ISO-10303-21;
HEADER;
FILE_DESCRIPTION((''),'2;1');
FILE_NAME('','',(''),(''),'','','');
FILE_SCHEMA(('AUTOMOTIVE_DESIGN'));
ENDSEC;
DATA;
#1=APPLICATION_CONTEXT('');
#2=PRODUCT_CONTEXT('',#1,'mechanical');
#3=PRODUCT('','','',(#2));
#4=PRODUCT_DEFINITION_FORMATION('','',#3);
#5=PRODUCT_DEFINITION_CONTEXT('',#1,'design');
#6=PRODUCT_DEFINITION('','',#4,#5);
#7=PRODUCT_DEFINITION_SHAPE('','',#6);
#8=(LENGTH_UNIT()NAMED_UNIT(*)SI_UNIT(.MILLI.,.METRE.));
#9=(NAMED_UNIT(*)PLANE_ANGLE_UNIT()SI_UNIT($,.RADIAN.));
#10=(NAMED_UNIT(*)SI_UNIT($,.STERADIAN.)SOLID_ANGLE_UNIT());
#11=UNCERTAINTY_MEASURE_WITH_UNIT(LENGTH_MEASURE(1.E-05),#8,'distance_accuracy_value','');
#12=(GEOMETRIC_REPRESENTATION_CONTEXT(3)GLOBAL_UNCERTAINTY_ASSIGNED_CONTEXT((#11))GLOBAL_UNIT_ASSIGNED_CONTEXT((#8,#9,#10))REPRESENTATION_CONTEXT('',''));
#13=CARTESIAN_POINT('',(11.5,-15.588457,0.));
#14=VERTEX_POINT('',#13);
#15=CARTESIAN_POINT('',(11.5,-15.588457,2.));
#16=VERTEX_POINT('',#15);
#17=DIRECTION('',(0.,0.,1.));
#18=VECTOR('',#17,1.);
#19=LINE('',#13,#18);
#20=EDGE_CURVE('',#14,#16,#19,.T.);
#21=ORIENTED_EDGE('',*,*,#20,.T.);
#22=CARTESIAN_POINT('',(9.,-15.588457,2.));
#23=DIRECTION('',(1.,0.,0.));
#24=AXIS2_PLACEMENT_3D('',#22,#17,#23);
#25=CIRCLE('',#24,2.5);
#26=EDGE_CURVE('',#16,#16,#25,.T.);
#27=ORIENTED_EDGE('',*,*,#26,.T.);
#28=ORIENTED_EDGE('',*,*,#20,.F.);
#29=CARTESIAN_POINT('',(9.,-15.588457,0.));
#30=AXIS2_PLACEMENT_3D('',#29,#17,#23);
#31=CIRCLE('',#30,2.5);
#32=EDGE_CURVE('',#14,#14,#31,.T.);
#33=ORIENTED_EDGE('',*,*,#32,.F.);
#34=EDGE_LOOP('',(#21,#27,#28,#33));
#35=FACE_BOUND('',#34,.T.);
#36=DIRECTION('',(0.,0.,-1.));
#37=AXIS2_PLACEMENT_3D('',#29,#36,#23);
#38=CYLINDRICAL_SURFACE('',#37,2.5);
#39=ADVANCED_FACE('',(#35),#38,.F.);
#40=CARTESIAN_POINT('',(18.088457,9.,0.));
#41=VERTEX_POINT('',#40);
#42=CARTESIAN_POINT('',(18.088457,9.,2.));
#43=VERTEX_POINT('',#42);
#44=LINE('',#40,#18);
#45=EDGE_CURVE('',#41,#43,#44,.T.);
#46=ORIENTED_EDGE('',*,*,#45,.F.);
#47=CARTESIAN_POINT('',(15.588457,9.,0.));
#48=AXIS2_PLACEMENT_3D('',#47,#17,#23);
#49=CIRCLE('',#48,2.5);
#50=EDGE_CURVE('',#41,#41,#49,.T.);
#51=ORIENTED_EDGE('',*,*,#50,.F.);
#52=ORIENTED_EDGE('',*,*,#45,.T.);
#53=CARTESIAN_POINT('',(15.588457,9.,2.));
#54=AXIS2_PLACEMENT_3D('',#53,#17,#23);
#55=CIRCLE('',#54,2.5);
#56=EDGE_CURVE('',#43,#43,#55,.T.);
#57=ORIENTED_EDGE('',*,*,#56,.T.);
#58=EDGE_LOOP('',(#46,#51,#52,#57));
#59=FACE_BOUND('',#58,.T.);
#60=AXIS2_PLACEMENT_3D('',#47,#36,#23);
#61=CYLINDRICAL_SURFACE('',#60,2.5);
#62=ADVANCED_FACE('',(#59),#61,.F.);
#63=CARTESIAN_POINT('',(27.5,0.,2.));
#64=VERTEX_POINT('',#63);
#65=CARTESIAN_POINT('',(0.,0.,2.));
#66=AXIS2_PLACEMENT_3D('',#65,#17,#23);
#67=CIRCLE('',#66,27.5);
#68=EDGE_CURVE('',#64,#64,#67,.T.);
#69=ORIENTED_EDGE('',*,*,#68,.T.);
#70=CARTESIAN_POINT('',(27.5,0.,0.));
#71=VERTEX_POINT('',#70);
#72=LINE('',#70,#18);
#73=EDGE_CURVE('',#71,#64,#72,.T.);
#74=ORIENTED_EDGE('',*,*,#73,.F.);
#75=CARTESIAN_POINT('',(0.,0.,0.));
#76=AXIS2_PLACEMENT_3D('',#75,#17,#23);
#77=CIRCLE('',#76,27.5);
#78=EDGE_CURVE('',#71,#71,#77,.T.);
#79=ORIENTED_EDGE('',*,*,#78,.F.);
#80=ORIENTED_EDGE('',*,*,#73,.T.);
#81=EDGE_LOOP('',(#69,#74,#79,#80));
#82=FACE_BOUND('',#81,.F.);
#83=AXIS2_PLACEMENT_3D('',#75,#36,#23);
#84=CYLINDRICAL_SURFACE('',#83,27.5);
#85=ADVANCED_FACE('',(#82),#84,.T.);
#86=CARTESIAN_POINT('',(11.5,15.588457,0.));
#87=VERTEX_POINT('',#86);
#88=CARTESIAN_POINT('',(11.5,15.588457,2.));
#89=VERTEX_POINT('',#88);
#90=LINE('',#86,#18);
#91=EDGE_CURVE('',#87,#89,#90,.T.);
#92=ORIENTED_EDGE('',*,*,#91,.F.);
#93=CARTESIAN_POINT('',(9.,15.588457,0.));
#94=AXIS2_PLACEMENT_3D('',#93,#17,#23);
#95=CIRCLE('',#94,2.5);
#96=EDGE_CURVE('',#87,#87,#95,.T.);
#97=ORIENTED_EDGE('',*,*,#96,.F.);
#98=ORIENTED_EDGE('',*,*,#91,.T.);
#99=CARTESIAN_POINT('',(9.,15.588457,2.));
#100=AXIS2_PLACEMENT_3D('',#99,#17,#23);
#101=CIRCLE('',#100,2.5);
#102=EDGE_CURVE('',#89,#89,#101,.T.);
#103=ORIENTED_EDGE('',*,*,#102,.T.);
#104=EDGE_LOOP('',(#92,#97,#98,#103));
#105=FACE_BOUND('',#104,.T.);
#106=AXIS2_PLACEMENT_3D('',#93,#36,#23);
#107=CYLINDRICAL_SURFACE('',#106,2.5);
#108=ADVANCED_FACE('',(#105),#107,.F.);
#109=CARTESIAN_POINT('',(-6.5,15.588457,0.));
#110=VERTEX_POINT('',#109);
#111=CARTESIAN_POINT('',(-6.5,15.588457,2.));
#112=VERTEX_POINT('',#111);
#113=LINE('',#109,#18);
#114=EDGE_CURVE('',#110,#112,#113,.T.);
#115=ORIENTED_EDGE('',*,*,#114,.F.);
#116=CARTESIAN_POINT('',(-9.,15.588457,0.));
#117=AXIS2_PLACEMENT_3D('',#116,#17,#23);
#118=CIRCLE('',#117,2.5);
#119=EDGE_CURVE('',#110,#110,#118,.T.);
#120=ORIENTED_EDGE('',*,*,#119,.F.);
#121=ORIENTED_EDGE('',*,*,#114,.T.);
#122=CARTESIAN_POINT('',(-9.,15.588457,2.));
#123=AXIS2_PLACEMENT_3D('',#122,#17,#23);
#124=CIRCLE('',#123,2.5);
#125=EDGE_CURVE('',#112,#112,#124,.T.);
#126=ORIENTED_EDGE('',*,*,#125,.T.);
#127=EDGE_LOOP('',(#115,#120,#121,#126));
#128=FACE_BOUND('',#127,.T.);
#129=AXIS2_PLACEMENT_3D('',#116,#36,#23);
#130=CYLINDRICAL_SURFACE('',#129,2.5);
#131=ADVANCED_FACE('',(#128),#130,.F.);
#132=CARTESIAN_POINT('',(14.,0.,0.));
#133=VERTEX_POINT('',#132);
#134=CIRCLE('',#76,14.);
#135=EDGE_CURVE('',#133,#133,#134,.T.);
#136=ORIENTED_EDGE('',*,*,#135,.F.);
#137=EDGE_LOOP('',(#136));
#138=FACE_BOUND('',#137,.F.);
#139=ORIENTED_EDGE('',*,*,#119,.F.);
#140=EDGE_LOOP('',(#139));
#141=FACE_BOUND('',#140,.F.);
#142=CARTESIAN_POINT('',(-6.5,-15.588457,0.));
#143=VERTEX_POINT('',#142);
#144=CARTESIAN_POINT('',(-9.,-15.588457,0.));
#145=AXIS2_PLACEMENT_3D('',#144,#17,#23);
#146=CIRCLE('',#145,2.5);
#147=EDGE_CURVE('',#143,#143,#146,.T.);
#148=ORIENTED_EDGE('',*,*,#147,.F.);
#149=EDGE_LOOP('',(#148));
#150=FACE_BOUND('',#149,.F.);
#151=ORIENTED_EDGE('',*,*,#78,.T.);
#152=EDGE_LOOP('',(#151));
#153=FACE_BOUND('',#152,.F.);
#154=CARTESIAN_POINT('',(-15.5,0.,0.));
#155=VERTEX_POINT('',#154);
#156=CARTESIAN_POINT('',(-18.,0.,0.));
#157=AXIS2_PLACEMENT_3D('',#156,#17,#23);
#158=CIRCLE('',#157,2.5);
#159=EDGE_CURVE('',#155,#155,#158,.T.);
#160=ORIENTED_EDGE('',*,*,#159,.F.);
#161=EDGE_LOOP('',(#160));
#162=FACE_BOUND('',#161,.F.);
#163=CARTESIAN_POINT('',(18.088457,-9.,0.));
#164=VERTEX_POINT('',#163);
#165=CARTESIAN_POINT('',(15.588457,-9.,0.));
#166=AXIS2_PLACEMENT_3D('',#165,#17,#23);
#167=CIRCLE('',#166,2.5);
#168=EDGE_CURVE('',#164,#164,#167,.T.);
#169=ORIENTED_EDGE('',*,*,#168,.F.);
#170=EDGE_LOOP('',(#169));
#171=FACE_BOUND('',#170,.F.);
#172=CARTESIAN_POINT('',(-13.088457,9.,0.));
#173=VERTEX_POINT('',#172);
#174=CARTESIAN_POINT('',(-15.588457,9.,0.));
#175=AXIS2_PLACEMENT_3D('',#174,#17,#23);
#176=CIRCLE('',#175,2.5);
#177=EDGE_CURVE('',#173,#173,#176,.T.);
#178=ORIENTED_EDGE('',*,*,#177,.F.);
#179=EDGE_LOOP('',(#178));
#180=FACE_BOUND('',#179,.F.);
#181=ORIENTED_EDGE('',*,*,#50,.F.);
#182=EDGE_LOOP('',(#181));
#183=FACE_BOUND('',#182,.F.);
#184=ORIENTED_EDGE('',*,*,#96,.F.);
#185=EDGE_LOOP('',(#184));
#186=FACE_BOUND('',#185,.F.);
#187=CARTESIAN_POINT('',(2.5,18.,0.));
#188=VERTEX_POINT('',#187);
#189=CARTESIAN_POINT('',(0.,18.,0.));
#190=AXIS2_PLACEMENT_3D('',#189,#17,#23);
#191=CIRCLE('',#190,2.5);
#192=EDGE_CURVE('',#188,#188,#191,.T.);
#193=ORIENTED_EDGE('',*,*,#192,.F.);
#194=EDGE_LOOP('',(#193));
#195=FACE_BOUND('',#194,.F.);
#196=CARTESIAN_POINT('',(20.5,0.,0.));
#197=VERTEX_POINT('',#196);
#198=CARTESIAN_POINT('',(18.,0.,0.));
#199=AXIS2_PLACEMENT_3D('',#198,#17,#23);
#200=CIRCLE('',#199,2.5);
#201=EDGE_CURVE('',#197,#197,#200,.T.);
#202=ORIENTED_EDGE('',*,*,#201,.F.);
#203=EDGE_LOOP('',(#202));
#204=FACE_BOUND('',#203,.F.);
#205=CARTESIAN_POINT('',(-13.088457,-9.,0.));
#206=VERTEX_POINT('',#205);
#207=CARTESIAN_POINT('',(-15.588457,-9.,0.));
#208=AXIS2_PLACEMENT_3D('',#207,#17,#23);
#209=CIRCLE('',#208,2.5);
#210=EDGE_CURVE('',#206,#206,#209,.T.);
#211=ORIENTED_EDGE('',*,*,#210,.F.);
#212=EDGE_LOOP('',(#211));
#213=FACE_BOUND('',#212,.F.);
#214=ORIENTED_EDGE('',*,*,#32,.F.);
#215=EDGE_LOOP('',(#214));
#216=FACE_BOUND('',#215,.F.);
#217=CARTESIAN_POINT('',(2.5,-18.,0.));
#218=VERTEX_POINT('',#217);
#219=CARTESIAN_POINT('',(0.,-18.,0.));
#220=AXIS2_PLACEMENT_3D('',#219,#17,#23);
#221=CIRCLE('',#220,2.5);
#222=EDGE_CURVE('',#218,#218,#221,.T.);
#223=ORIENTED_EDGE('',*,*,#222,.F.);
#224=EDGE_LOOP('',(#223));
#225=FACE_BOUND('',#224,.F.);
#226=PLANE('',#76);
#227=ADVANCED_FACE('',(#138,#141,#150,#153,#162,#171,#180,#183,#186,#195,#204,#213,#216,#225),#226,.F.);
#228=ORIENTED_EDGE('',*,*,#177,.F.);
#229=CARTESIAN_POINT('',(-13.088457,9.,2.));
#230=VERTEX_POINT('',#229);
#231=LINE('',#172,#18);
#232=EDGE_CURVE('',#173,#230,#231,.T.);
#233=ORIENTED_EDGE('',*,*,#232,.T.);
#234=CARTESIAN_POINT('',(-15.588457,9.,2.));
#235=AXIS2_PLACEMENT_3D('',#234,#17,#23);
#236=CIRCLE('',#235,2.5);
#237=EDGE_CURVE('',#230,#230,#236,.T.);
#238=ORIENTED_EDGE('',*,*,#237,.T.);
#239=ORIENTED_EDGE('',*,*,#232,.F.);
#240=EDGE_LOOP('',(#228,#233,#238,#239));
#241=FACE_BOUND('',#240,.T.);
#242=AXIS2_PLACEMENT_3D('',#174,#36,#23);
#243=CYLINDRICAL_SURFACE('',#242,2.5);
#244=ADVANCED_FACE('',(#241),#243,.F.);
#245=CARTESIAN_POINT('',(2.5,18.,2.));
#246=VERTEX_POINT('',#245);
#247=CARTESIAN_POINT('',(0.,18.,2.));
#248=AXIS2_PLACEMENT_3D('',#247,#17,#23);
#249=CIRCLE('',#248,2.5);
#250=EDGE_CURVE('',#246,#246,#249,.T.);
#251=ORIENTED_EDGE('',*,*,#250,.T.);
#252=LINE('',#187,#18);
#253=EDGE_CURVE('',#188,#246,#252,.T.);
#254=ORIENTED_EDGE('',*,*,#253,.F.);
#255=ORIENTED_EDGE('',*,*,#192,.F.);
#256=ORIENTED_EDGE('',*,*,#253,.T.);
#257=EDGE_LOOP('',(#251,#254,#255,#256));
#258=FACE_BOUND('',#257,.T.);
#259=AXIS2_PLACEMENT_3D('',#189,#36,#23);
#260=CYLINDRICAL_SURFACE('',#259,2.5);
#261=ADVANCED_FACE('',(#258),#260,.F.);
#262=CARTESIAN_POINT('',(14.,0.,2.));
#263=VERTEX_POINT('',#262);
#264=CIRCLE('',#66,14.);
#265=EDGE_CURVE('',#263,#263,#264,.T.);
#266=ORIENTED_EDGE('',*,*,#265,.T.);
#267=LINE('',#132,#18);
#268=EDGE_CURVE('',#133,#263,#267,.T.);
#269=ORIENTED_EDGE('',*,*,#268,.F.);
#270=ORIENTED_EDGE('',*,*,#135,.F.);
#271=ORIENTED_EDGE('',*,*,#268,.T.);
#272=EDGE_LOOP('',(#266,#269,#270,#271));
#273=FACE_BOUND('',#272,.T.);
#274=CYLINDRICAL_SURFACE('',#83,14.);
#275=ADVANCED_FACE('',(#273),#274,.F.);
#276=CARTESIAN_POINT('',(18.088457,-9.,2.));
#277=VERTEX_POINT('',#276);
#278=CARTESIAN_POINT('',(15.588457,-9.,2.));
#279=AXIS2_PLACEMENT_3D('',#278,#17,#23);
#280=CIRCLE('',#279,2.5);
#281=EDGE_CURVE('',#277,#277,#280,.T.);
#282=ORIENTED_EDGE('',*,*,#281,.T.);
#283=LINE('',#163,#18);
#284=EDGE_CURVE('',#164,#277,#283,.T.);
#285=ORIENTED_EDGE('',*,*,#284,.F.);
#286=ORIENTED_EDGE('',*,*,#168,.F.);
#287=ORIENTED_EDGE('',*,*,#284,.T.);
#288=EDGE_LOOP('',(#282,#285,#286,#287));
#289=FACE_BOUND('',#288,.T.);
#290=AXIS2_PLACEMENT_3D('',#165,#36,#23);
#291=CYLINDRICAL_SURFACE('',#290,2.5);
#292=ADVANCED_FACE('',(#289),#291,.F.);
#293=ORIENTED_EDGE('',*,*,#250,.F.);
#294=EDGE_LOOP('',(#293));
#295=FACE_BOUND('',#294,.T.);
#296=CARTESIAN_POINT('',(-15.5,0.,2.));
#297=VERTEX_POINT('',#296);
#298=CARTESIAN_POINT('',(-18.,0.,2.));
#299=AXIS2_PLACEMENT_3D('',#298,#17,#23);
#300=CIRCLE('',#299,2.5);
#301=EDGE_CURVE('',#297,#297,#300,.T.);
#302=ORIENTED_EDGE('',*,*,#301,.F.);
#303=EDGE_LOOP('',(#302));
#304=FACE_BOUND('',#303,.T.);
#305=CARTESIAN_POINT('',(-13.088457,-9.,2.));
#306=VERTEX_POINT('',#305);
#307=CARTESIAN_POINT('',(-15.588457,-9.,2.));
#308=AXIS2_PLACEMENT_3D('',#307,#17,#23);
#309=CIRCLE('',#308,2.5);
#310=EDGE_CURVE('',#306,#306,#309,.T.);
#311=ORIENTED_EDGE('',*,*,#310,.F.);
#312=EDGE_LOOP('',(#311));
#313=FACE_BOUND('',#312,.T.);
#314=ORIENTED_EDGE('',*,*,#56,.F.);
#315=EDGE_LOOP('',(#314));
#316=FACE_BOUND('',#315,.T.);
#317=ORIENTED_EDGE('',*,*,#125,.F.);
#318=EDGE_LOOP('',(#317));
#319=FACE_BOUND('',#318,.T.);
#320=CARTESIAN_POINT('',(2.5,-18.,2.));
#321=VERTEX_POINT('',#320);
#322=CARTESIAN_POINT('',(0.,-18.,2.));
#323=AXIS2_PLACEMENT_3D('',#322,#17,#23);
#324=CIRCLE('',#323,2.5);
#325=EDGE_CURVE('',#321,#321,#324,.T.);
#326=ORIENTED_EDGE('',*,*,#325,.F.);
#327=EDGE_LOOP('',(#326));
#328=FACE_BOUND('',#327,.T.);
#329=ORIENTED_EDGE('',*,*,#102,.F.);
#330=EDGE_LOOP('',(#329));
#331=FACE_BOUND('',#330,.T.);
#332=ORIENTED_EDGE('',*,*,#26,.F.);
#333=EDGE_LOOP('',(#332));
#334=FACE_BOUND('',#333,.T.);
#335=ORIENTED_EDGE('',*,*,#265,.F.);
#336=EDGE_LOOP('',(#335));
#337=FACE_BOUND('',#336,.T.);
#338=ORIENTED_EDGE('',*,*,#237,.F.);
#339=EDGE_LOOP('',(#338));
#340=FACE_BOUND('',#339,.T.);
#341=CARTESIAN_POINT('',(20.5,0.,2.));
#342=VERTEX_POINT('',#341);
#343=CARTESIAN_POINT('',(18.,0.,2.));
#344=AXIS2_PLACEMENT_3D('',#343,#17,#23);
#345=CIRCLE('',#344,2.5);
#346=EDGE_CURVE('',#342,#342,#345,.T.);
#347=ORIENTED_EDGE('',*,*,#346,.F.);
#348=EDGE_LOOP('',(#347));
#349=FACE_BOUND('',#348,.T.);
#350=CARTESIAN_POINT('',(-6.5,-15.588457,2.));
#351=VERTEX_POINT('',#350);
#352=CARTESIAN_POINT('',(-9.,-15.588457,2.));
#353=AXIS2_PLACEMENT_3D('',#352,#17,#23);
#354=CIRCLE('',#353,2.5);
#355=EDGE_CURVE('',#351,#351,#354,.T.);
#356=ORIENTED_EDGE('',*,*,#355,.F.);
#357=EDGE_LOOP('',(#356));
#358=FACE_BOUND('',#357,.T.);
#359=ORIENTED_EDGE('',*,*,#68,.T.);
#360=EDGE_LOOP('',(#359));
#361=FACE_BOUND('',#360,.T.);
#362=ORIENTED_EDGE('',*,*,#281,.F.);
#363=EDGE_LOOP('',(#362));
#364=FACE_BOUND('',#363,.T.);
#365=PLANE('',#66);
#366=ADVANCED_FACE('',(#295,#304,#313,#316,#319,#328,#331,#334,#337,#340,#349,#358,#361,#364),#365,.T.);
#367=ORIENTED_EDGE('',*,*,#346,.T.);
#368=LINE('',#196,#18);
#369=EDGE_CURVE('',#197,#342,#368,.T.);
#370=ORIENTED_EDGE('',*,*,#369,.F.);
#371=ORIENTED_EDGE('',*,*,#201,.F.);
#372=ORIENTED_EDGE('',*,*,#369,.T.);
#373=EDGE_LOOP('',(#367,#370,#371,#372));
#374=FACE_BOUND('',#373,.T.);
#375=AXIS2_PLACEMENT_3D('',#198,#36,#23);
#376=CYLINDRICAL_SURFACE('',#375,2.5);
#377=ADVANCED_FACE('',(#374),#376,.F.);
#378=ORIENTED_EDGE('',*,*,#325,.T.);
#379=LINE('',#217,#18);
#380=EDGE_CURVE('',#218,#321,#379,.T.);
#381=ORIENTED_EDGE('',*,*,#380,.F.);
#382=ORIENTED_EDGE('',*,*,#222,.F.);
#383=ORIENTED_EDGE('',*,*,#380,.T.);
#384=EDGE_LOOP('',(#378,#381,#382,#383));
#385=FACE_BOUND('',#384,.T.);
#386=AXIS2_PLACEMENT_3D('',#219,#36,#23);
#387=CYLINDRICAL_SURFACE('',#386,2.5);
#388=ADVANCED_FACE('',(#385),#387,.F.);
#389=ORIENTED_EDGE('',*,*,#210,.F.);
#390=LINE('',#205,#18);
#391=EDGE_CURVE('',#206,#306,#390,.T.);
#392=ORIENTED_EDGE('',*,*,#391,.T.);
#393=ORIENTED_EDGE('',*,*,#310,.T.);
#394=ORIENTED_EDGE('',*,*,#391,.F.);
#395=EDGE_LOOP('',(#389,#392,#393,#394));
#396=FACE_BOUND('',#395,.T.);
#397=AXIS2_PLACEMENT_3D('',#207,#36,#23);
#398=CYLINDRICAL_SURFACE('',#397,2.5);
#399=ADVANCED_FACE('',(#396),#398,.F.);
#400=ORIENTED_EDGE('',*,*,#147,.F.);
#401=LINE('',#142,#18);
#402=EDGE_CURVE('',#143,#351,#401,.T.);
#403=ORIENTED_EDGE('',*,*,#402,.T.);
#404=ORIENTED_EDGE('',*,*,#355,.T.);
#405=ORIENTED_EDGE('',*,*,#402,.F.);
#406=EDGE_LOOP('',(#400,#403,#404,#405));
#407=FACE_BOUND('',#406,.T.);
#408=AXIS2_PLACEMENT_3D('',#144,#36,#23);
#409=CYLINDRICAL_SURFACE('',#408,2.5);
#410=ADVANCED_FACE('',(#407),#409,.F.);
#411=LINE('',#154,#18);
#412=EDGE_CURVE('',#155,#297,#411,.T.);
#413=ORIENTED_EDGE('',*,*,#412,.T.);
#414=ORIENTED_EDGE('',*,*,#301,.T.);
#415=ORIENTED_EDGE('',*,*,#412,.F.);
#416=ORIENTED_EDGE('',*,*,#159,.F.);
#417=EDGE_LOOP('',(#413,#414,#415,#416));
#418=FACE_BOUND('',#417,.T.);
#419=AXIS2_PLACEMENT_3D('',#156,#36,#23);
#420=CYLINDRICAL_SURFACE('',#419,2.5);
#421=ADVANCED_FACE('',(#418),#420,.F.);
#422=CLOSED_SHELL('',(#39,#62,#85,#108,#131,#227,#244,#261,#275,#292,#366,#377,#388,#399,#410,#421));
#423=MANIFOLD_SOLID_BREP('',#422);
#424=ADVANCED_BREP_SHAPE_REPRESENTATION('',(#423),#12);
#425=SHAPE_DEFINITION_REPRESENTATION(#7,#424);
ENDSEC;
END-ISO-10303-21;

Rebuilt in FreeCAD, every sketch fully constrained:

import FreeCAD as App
import Part
import Sketcher

V = App.Vector
Q = App.Units.Quantity

doc = App.newDocument("Part")
body = doc.addObject("PartDesign::Body", "Body")

# Sketch on XY plane
sketch1 = doc.addObject("Sketcher::SketchObject", "Sketch")
body.addObject(sketch1)
sketch1.AttachmentSupport = (doc.XY_Plane, [""])
sketch1.MapMode = "FlatFace"
sketch1.addGeometry([
    Part.Circle(V(0, 0, 0), V(0, 0, 1), 27.5),  # 0
    Part.Circle(V(-9, -15.6, 0), V(0, 0, 1), 2.5),  # 1
    Part.Circle(V(-15.6, -9, 0), V(0, 0, 1), 2.5),  # 2
    Part.Circle(V(0, -18, 0), V(0, 0, 1), 2.5),  # 3
    Part.Circle(V(9, -15.6, 0), V(0, 0, 1), 2.5),  # 4
    Part.Circle(V(15.6, -9, 0), V(0, 0, 1), 2.5),  # 5
    Part.Circle(V(-18, 0, 0), V(0, 0, 1), 2.5),  # 6
    Part.Circle(V(-15.6, 9, 0), V(0, 0, 1), 2.5),  # 7
    Part.Circle(V(-9, 15.6, 0), V(0, 0, 1), 2.5),  # 8
    Part.Circle(V(0, 0, 0), V(0, 0, 1), 14),  # 9
    Part.Circle(V(18, 0, 0), V(0, 0, 1), 2.5),  # 10
    Part.Circle(V(15.6, 9, 0), V(0, 0, 1), 2.5),  # 11
    Part.Circle(V(0, 18, 0), V(0, 0, 1), 2.5),  # 12
    Part.Circle(V(9, 15.6, 0), V(0, 0, 1), 2.5),  # 13
], False)
sketch1.addConstraint([
    Sketcher.Constraint("Coincident", 0, 3, -1, 1),
    Sketcher.Constraint("Coincident", 9, 3, -1, 1),
    Sketcher.Constraint("Equal", 1, 2),
    Sketcher.Constraint("Equal", 2, 3),
    Sketcher.Constraint("Equal", 3, 4),
    Sketcher.Constraint("Equal", 4, 5),
    Sketcher.Constraint("Equal", 5, 6),
    Sketcher.Constraint("Equal", 6, 7),
    Sketcher.Constraint("Equal", 7, 8),
    Sketcher.Constraint("Equal", 8, 10),
    Sketcher.Constraint("Equal", 10, 11),
    Sketcher.Constraint("Equal", 11, 12),
    Sketcher.Constraint("Equal", 12, 13),
    Sketcher.Constraint("Symmetric", 5, 3, 7, 3, -1, 1),
    Sketcher.Constraint("Symmetric", 4, 3, 8, 3, -1, 1),
    Sketcher.Constraint("Symmetric", 6, 3, 10, 3, -1, 1),
    Sketcher.Constraint("Symmetric", 2, 3, 11, 3, -1, 1),
    Sketcher.Constraint("Symmetric", 3, 3, 12, 3, -1, 1),
    Sketcher.Constraint("Symmetric", 1, 3, 13, 3, -1, 1),
    Sketcher.Constraint("Symmetric", 1, 3, 4, 3, -2),
    Sketcher.Constraint("Symmetric", 2, 3, 5, 3, -2),
    Sketcher.Constraint("PointOnObject", 3, 3, -2),
    Sketcher.Constraint("PointOnObject", 6, 3, -1),
    Sketcher.Constraint("Diameter", 0, Q("55 mm")),
    Sketcher.Constraint("Diameter", 1, Q("5 mm")),
    Sketcher.Constraint("Diameter", 9, Q("28 mm")),
    Sketcher.Constraint("DistanceX", 1, 3, -1, 1, Q("9 mm")),
    Sketcher.Constraint("DistanceY", 2, 3, -1, 1, Q("9 mm")),
    Sketcher.Constraint("DistanceY", 3, 3, -1, 1, Q("18 mm")),
    Sketcher.Constraint("DistanceX", 6, 3, -1, 1, Q("18 mm")),
    Sketcher.Constraint("DistanceY", 1, 3, -1, 1, Q("15.588457 mm")),
    Sketcher.Constraint("DistanceX", 2, 3, -1, 1, Q("15.588457 mm")),
])
pad1 = doc.addObject("PartDesign::Pad", "Pad")
body.addObject(pad1)
pad1.Profile = sketch1
pad1.Length = 2

doc.recompute()
